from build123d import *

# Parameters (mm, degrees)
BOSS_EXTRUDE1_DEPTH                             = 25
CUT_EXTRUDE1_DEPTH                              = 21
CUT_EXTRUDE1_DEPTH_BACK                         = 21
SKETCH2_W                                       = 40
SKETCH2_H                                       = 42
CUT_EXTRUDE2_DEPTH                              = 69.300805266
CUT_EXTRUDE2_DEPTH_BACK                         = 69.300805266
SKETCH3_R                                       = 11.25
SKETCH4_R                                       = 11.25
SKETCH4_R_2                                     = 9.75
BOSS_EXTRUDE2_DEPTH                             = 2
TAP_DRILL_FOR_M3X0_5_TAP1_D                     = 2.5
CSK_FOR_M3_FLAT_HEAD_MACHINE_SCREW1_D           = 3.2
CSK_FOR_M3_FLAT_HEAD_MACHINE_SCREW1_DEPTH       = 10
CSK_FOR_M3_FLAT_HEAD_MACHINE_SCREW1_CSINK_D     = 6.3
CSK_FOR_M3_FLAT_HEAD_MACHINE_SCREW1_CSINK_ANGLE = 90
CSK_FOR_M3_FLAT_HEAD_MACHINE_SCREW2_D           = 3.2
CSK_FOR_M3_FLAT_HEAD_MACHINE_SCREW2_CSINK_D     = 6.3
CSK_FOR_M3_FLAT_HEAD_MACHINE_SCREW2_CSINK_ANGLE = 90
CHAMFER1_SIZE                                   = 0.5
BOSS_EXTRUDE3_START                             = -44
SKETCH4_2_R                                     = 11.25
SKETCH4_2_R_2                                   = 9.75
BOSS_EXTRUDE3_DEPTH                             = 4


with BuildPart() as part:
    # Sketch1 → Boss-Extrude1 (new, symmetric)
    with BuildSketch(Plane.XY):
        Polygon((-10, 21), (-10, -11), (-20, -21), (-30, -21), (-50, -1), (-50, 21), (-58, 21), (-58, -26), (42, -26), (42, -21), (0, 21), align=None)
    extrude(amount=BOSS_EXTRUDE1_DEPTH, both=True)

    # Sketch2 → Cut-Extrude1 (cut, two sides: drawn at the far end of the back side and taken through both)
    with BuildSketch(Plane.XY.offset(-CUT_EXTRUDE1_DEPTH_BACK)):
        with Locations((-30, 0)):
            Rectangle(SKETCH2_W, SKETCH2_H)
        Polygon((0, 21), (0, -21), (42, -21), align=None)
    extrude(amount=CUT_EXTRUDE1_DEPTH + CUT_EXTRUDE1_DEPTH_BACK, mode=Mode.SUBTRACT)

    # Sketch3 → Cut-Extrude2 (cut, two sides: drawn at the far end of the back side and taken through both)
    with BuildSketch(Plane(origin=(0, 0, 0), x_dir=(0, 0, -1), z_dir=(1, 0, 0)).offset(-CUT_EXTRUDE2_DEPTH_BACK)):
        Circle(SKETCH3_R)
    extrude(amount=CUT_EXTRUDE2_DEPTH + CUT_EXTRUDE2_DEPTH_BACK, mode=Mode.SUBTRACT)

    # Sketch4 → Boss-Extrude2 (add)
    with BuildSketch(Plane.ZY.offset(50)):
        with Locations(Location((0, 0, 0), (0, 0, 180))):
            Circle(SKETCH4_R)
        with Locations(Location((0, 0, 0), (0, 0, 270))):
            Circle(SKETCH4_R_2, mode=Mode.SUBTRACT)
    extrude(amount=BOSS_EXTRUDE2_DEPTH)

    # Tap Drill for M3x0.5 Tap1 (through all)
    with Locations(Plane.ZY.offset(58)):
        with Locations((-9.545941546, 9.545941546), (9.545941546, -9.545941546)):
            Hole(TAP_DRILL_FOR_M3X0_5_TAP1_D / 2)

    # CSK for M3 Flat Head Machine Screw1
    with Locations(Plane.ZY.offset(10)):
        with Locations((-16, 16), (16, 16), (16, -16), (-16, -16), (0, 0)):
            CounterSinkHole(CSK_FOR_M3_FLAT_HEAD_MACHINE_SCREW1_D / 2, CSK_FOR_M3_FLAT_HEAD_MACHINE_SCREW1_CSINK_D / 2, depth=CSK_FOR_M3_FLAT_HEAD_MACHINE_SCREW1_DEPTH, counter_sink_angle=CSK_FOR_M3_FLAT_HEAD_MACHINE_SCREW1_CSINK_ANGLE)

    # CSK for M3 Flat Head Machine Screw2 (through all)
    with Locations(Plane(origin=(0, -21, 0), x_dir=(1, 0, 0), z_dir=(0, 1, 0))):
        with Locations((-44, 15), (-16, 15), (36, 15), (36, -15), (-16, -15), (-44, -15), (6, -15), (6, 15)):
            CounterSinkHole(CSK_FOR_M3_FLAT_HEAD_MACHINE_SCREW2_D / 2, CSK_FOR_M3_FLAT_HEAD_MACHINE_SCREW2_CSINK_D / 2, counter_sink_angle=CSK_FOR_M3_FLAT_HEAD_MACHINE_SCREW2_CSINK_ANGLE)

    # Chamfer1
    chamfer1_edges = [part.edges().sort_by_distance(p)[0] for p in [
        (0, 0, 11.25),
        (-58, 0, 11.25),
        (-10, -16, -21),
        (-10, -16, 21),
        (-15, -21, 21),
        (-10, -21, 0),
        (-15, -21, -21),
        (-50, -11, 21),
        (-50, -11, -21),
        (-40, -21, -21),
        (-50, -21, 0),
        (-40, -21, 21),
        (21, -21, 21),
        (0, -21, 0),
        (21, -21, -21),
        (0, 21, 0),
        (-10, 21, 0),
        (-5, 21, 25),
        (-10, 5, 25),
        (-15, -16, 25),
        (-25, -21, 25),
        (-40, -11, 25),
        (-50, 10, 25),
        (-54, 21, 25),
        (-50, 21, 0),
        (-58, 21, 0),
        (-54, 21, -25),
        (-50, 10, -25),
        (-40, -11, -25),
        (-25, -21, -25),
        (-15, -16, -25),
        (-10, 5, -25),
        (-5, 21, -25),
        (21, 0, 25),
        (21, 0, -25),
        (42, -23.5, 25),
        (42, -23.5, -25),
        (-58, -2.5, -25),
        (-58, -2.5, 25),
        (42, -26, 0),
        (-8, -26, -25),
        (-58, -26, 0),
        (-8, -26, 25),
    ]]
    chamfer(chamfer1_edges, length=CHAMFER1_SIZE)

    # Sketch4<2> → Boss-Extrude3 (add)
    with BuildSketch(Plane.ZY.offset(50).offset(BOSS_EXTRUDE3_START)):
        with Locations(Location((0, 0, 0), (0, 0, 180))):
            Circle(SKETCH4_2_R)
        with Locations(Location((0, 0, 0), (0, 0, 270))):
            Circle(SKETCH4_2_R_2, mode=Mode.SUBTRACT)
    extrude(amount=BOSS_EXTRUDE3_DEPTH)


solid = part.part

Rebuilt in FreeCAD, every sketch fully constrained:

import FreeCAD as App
import Part
import Sketcher


def edges_at(feature, points):
    """Names of the edges that pass closest to the given points."""
    edges = feature.Shape.Edges
    near = lambda p: min(range(len(edges)), key=lambda i: edges[i].distToShape(Part.Vertex(*p))[0])
    return sorted({f"Edge{near(p) + 1}" for p in points})


def add_polygon(sketch, points):
    """Adds a closed chain of lines whose ends are joined by coincident constraints."""
    first, n = sketch.GeometryCount, len(points)
    for a, b in zip(points, points[1:] + points[:1]):
        sketch.addGeometry(Part.LineSegment(App.Vector(*a, 0), App.Vector(*b, 0)), False)
    for i in range(n):
        sketch.addConstraint(Sketcher.Constraint("Coincident", first + i, 2, first + (i + 1) % n, 1))

doc = App.newDocument("Part")
body = doc.addObject("PartDesign::Body", "Body")

# Sketch on XY plane
sketch1 = body.newObject("Sketcher::SketchObject", "Sketch")
sketch1.AttachmentSupport = (doc.getObject("XY_Plane"), [""])
sketch1.MapMode = "FlatFace"
add_polygon(sketch1, [(-10, 21), (-10, -11), (-20, -21), (-30, -21), (-50, -1), (-50, 21), (-58, 21), (-58, -26), (42, -26), (42, -21), (0, 21)])  # lines 0-10
sketch1.addConstraint(Sketcher.Constraint("Vertical", 0))
sketch1.addConstraint(Sketcher.Constraint("Horizontal", 2))
sketch1.addConstraint(Sketcher.Constraint("Vertical", 4))
sketch1.addConstraint(Sketcher.Constraint("Horizontal", 5))
sketch1.addConstraint(Sketcher.Constraint("Vertical", 6))
sketch1.addConstraint(Sketcher.Constraint("Horizontal", 7))
sketch1.addConstraint(Sketcher.Constraint("Vertical", 8))
sketch1.addConstraint(Sketcher.Constraint("Horizontal", 10))
sketch1.addConstraint(Sketcher.Constraint("PointOnObject", 9, 2, -2))
sketch1.addConstraint(Sketcher.Constraint("Perpendicular", 1, 3))
sketch1.addConstraint(Sketcher.Constraint("Parallel", 3, 9))
sketch1.addConstraint(Sketcher.Constraint("Horizontal", 2, 2, 8, 2))
sketch1.addConstraint(Sketcher.Constraint("Horizontal", 5, 2, 9, 2))
sketch1.addConstraint(Sketcher.Constraint("Equal", 2, 10))
sketch1.addConstraint(Sketcher.Constraint("DistanceX", 2, 2, 2, 1, 10.0))
sketch1.addConstraint(Sketcher.Constraint("DistanceX", 5, 2, 5, 1, 8.0))
sketch1.addConstraint(Sketcher.Constraint("DistanceX", 7, 1, 7, 2, 100.0))
sketch1.addConstraint(Sketcher.Constraint("DistanceY", 0, 2, 0, 1, 32.0))
sketch1.addConstraint(Sketcher.Constraint("DistanceY", 4, 1, 4, 2, 22.0))
sketch1.addConstraint(Sketcher.Constraint("DistanceY", 6, 2, 6, 1, 47.0))
sketch1.addConstraint(Sketcher.Constraint("DistanceY", 8, 1, 8, 2, 5.0))
sketch1.addConstraint(Sketcher.Constraint("DistanceY", 0, 2, -1, 1, 11.0))
pad1 = body.newObject("PartDesign::Pad", "Pad")
pad1.Profile = sketch1
pad1.Length = 50
pad1.Midplane = True

# Sketch on XY plane
sketch2 = body.newObject("Sketcher::SketchObject", "Sketch001")
sketch2.AttachmentSupport = (doc.getObject("XY_Plane"), [""])
sketch2.MapMode = "FlatFace"
add_polygon(sketch2, [(-50, 21), (-50, -21), (-10, -21), (-10, 21)])  # lines 0-3
add_polygon(sketch2, [(0, 21), (0, -21), (42, -21)])  # lines 4-6
sketch2.addConstraint(Sketcher.Constraint("Vertical", 0))
sketch2.addConstraint(Sketcher.Constraint("Horizontal", 1))
sketch2.addConstraint(Sketcher.Constraint("Vertical", 2))
sketch2.addConstraint(Sketcher.Constraint("Horizontal", 3))
sketch2.addConstraint(Sketcher.Constraint("Vertical", 4))
sketch2.addConstraint(Sketcher.Constraint("Horizontal", 5))
sketch2.addConstraint(Sketcher.Constraint("Symmetric", 4, 2, 6, 2, -1, 1))
sketch2.addConstraint(Sketcher.Constraint("Horizontal", 1, 2, 4, 2))
sketch2.addConstraint(Sketcher.Constraint("Horizontal", 3, 2, 6, 2))
sketch2.addConstraint(Sketcher.Constraint("Equal", 5, 0))
sketch2.addConstraint(Sketcher.Constraint("DistanceX", 1, 1, 1, 2, 40.0))
sketch2.addConstraint(Sketcher.Constraint("DistanceX", 5, 1, 5, 2, 42.0))
sketch2.addConstraint(Sketcher.Constraint("DistanceX", 0, 2, -1, 1, 50.0))
pocket1 = body.newObject("PartDesign::Pocket", "Pocket")
pocket1.Profile = sketch2
pocket1.Type = "TwoLengths"
pocket1.Length = 21
pocket1.Length2 = 21
pocket1.Reversed = True

# Sketch on YZ plane
sketch3 = body.newObject("Sketcher::SketchObject", "Sketch002")
sketch3.AttachmentSupport = (doc.getObject("YZ_Plane"), [""])
sketch3.MapMode = "FlatFace"
sketch3.addGeometry(Part.Circle(App.Vector(0, 0, 0), App.Vector(0, 0, 1), 11), False)
sketch3.addConstraint(Sketcher.Constraint("Coincident", 0, 3, -1, 1))
sketch3.addConstraint(Sketcher.Constraint("Diameter", 0, 22.5))
pocket2 = body.newObject("PartDesign::Pocket", "Pocket001")
pocket2.Profile = sketch3
pocket2.Type = "ThroughAll"
pocket2.Midplane = True

# Sketch on YZ plane
sketch4 = body.newObject("Sketcher::SketchObject", "Sketch003")
sketch4.AttachmentSupport = (doc.getObject("YZ_Plane"), [""])
sketch4.MapMode = "FlatFace"
sketch4.AttachmentOffset = App.Placement(App.Vector(0, 0, -50), App.Rotation())
sketch4.addGeometry(Part.Circle(App.Vector(0, 0, 0), App.Vector(0, 0, 1), 11), False)
sketch4.addGeometry(Part.Circle(App.Vector(0, 0, 0), App.Vector(0, 0, 1), 10), False)
sketch4.addConstraint(Sketcher.Constraint("Coincident", 0, 3, -1, 1))
sketch4.addConstraint(Sketcher.Constraint("Coincident", 1, 3, -1, 1))
sketch4.addConstraint(Sketcher.Constraint("Diameter", 0, 22.5))
sketch4.addConstraint(Sketcher.Constraint("Diameter", 1, 19.5))
pad2 = body.newObject("PartDesign::Pad", "Pad001")
pad2.Profile = sketch4
pad2.Length = 2
pad2.Reversed = True

# Sketch on YZ plane
sketch5 = body.newObject("Sketcher::SketchObject", "Sketch004")
sketch5.AttachmentSupport = (doc.getObject("YZ_Plane"), [""])
sketch5.MapMode = "FlatFace"
sketch5.AttachmentOffset = App.Placement(App.Vector(0, 0, -58), App.Rotation())
sketch5.addGeometry(Part.Circle(App.Vector(9.5, -9.5, 0), App.Vector(0, 0, 1), 1.2), False)
sketch5.addGeometry(Part.Circle(App.Vector(-9.5, 9.5, 0), App.Vector(0, 0, 1), 1.2), False)
sketch5.addConstraint(Sketcher.Constraint("Equal", 0, 1))
sketch5.addConstraint(Sketcher.Constraint("Symmetric", 0, 3, 1, 3, -1, 1))
sketch5.addConstraint(Sketcher.Constraint("Diameter", 0, 2.5))
sketch5.addConstraint(Sketcher.Constraint("DistanceX", -1, 1, 0, 3, 9.545942))
sketch5.addConstraint(Sketcher.Constraint("DistanceY", 0, 3, -1, 1, 9.545942))
doc.recompute()
hole = body.newObject("PartDesign::Hole", "Hole")
hole.Profile = sketch5
hole.ThreadType = "None"
hole.Diameter = 2.5
hole.DepthType = "ThroughAll"
hole.Reversed = True

# Sketch on YZ plane
sketch6 = body.newObject("Sketcher::SketchObject", "Sketch005")
sketch6.AttachmentSupport = (doc.getObject("YZ_Plane"), [""])
sketch6.MapMode = "FlatFace"
sketch6.AttachmentOffset = App.Placement(App.Vector(0, 0, -10), App.Rotation())
sketch6.addGeometry(Part.Circle(App.Vector(16, -16, 0), App.Vector(0, 0, 1), 1.6), False)
sketch6.addGeometry(Part.Circle(App.Vector(16, 16, 0), App.Vector(0, 0, 1), 1.6), False)
sketch6.addGeometry(Part.Circle(App.Vector(-16, 16, 0), App.Vector(0, 0, 1), 1.6), False)
sketch6.addGeometry(Part.Circle(App.Vector(-16, -16, 0), App.Vector(0, 0, 1), 1.6), False)
sketch6.addGeometry(Part.Circle(App.Vector(0, 0, 0), App.Vector(0, 0, 1), 1.6), False)
sketch6.addConstraint(Sketcher.Constraint("Coincident", 4, 3, -1, 1))
sketch6.addConstraint(Sketcher.Constraint("Equal", 0, 1))
sketch6.addConstraint(Sketcher.Constraint("Equal", 1, 2))
sketch6.addConstraint(Sketcher.Constraint("Equal", 2, 3))
sketch6.addConstraint(Sketcher.Constraint("Equal", 3, 4))
sketch6.addConstraint(Sketcher.Constraint("Symmetric", 0, 3, 2, 3, -1, 1))
sketch6.addConstraint(Sketcher.Constraint("Symmetric", 1, 3, 3, 3, -1, 1))
sketch6.addConstraint(Sketcher.Constraint("Symmetric", 1, 3, 2, 3, -2))
sketch6.addConstraint(Sketcher.Constraint("Diameter", 0, 3.2))
sketch6.addConstraint(Sketcher.Constraint("DistanceX", -1, 1, 0, 3, 16.0))
sketch6.addConstraint(Sketcher.Constraint("DistanceY", 0, 3, -1, 1, 16.0))
doc.recompute()
hole2 = body.newObject("PartDesign::Hole", "Hole001")
hole2.Profile = sketch6
hole2.ThreadType = "None"
hole2.Diameter = 3.2
hole2.DepthType = "Dimension"
hole2.Depth = 10
hole2.DrillPoint = "Flat"
hole2.HoleCutType = "Countersink"
hole2.HoleCutDiameter = 6.3
hole2.HoleCutCountersinkAngle = 90
hole2.Reversed = True

# Sketch on XZ plane
sketch7 = body.newObject("Sketcher::SketchObject", "Sketch006")
sketch7.AttachmentSupport = (doc.getObject("XZ_Plane"), [""])
sketch7.MapMode = "FlatFace"
sketch7.AttachmentOffset = App.Placement(App.Vector(0, 0, 21), App.Rotation())
sketch7.addGeometry(Part.Circle(App.Vector(-44, -15, 0), App.Vector(0, 0, 1), 1.6), False)
sketch7.addGeometry(Part.Circle(App.Vector(-16, -15, 0), App.Vector(0, 0, 1), 1.6), False)
sketch7.addGeometry(Part.Circle(App.Vector(36, -15, 0), App.Vector(0, 0, 1), 1.6), False)
sketch7.addGeometry(Part.Circle(App.Vector(36, 15, 0), App.Vector(0, 0, 1), 1.6), False)
sketch7.addGeometry(Part.Circle(App.Vector(-16, 15, 0), App.Vector(0, 0, 1), 1.6), False)
sketch7.addGeometry(Part.Circle(App.Vector(-44, 15, 0), App.Vector(0, 0, 1), 1.6), False)
sketch7.addGeometry(Part.Circle(App.Vector(6, 15, 0), App.Vector(0, 0, 1), 1.6), False)
sketch7.addGeometry(Part.Circle(App.Vector(6, -15, 0), App.Vector(0, 0, 1), 1.6), False)
sketch7.addConstraint(Sketcher.Constraint("Equal", 0, 1))
sketch7.addConstraint(Sketcher.Constraint("Equal", 1, 2))
sketch7.addConstraint(Sketcher.Constraint("Equal", 2, 3))
sketch7.addConstraint(Sketcher.Constraint("Equal", 3, 4))
sketch7.addConstraint(Sketcher.Constraint("Equal", 4, 5))
sketch7.addConstraint(Sketcher.Constraint("Equal", 5, 6))
sketch7.addConstraint(Sketcher.Constraint("Equal", 6, 7))
sketch7.addConstraint(Sketcher.Constraint("Symmetric", 2, 3, 3, 3, -1))
sketch7.addConstraint(Sketcher.Constraint("Symmetric", 1, 3, 4, 3, -1))
sketch7.addConstraint(Sketcher.Constraint("Symmetric", 0, 3, 5, 3, -1))
sketch7.addConstraint(Sketcher.Constraint("Symmetric", 6, 3, 7, 3, -1))
sketch7.addConstraint(Sketcher.Constraint("Horizontal", 0, 3, 1, 3))
sketch7.addConstraint(Sketcher.Constraint("Horizontal", 1, 3, 2, 3))
sketch7.addConstraint(Sketcher.Constraint("Horizontal", 5, 3, 6, 3))
sketch7.addConstraint(Sketcher.Constraint("Diameter", 0, 3.2))
sketch7.addConstraint(Sketcher.Constraint("DistanceX", 0, 3, -1, 1, 44.0))
sketch7.addConstraint(Sketcher.Constraint("DistanceY", 0, 3, -1, 1, 15.0))
sketch7.addConstraint(Sketcher.Constraint("DistanceX", 1, 3, -1, 1, 16.0))
sketch7.addConstraint(Sketcher.Constraint("DistanceX", -1, 1, 2, 3, 36.0))
sketch7.addConstraint(Sketcher.Constraint("DistanceX", -1, 1, 6, 3, 6.0))
doc.recompute()
hole3 = body.newObject("PartDesign::Hole", "Hole002")
hole3.Profile = sketch7
hole3.ThreadType = "None"
hole3.Diameter = 3.2
hole3.DepthType = "ThroughAll"
hole3.HoleCutType = "Countersink"
hole3.HoleCutDiameter = 6.3
hole3.HoleCutCountersinkAngle = 90
hole3.Reversed = True
doc.recompute()

chamfer = body.newObject("PartDesign::Chamfer", "Chamfer")
chamfer.Base = (hole3, edges_at(hole3, [
    (0, 0, 11.25),
    (-58, 0, 11.25),
    (-10, -16, -21),
    (-10, -16, 21),
    (-15, -21, 21),
    (-10, -21, 0),
    (-15, -21, -21),
    (-50, -11, 21),
    (-50, -11, -21),
    (-40, -21, -21),
    (-50, -21, 0),
    (-40, -21, 21),
    (21, -21, 21),
    (0, -21, 0),
    (21, -21, -21),
    (0, 21, 0),
    (-10, 21, 0),
    (-5, 21, 25),
    (-10, 5, 25),
    (-15, -16, 25),
    (-25, -21, 25),
    (-40, -11, 25),
    (-50, 10, 25),
    (-54, 21, 25),
    (-50, 21, 0),
    (-58, 21, 0),
    (-54, 21, -25),
    (-50, 10, -25),
    (-40, -11, -25),
    (-25, -21, -25),
    (-15, -16, -25),
    (-10, 5, -25),
    (-5, 21, -25),
    (21, 0, 25),
    (21, 0, -25),
    (42, -23.5, 25),
    (42, -23.5, -25),
    (-58, -2.5, -25),
    (-58, -2.5, 25),
    (42, -26, 0),
    (-8, -26, -25),
    (-58, -26, 0),
    (-8, -26, 25),
]))
chamfer.Size = 0.5

# Sketch on YZ plane
sketch8 = body.newObject("Sketcher::SketchObject", "Sketch007")
sketch8.AttachmentSupport = (doc.getObject("YZ_Plane"), [""])
sketch8.MapMode = "FlatFace"
sketch8.AttachmentOffset = App.Placement(App.Vector(0, 0, -6), App.Rotation())
sketch8.addGeometry(Part.Circle(App.Vector(0, 0, 0), App.Vector(0, 0, 1), 11), False)
sketch8.addGeometry(Part.Circle(App.Vector(0, 0, 0), App.Vector(0, 0, 1), 10), False)
sketch8.addConstraint(Sketcher.Constraint("Coincident", 0, 3, -1, 1))
sketch8.addConstraint(Sketcher.Constraint("Coincident", 1, 3, -1, 1))
sketch8.addConstraint(Sketcher.Constraint("Diameter", 0, 22.5))
sketch8.addConstraint(Sketcher.Constraint("Diameter", 1, 19.5))
pad3 = body.newObject("PartDesign::Pad", "Pad002")
pad3.Profile = sketch8
pad3.Length = 4
pad3.Reversed = True

doc.recompute()
